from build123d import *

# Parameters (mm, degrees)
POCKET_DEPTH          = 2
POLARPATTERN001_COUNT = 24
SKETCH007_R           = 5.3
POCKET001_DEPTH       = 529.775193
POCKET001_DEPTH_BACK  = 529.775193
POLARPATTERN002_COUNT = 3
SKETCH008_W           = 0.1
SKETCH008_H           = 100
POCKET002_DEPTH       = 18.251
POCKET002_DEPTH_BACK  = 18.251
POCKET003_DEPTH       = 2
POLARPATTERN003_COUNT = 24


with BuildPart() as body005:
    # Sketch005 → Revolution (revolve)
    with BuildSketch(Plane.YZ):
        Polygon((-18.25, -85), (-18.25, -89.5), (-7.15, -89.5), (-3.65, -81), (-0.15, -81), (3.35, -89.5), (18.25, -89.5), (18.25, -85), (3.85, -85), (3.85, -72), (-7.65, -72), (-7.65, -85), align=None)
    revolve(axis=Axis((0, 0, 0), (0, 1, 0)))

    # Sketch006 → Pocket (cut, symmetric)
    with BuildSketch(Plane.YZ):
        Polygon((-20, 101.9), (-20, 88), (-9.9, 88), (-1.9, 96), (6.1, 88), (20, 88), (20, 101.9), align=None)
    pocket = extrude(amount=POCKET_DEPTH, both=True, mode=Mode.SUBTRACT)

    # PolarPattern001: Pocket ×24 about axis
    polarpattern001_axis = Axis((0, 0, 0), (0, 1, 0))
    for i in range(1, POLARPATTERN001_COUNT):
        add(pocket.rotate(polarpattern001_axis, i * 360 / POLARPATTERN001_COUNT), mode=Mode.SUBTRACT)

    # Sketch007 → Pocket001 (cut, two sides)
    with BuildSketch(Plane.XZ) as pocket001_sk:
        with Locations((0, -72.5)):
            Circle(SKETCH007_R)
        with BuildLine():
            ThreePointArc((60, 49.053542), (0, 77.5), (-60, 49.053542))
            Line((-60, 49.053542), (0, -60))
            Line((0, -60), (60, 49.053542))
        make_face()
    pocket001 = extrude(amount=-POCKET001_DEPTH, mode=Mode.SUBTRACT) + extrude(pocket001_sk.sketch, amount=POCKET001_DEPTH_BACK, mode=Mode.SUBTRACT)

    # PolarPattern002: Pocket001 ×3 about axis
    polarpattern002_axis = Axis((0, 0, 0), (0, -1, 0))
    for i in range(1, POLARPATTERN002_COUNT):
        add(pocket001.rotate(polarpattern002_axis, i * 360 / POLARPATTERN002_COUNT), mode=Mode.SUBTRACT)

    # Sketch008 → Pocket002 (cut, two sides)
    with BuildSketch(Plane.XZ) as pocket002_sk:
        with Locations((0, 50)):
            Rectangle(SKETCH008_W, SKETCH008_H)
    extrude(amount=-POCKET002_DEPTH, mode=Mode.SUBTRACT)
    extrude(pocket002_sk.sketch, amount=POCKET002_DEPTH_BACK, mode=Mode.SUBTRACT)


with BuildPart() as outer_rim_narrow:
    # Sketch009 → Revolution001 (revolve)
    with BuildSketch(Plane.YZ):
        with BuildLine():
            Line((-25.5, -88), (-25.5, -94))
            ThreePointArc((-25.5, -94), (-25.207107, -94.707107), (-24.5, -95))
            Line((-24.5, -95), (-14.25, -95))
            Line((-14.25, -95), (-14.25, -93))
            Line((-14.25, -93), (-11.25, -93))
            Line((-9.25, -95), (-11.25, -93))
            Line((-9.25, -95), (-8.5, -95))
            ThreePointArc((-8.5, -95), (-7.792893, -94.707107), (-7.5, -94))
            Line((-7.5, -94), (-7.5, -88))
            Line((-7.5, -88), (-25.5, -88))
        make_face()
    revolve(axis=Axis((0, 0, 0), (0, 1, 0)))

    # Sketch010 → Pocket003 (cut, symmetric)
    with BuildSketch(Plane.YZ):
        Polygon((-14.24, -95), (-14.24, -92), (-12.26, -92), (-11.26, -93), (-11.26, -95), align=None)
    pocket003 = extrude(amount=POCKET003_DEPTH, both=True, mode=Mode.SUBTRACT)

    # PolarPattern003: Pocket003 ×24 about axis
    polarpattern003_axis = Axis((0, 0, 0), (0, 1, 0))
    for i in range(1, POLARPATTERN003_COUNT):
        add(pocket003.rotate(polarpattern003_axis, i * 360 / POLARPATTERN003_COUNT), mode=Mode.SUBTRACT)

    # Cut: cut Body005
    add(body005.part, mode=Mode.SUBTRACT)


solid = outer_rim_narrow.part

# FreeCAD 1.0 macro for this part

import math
import FreeCAD as App
import Part
import Sketcher
from FreeCAD import Vector
Q = App.Units.Quantity

doc = App.newDocument("Part")
body = doc.addObject("PartDesign::Body", "Body")

# Sketch on YZ plane
sketch1 = body.newObject("Sketcher::SketchObject", "Sketch")
sketch1.AttachmentSupport = (doc.getObject("YZ_Plane"), [""])
sketch1.MapMode = "FlatFace"
sketch1.addGeometry(Part.LineSegment(Vector(-18.2, -85, 0), Vector(-18.2, -89.5, 0)), False)
sketch1.addGeometry(Part.LineSegment(Vector(-18.2, -89.5, 0), Vector(-7.2, -89.5, 0)), False)
sketch1.addGeometry(Part.LineSegment(Vector(-7.2, -89.5, 0), Vector(-3.6, -81, 0)), False)
sketch1.addGeometry(Part.LineSegment(Vector(-3.6, -81, 0), Vector(-0.1, -81, 0)), False)
sketch1.addGeometry(Part.LineSegment(Vector(-0.1, -81, 0), Vector(3.4, -89.5, 0)), False)
sketch1.addGeometry(Part.LineSegment(Vector(3.4, -89.5, 0), Vector(18.2, -89.5, 0)), False)
sketch1.addGeometry(Part.LineSegment(Vector(18.2, -89.5, 0), Vector(18.2, -85, 0)), False)
sketch1.addGeometry(Part.LineSegment(Vector(18.2, -85, 0), Vector(3.9, -85, 0)), False)
sketch1.addGeometry(Part.LineSegment(Vector(3.9, -85, 0), Vector(3.9, -72, 0)), False)
sketch1.addGeometry(Part.LineSegment(Vector(3.9, -72, 0), Vector(-7.7, -72, 0)), False)
sketch1.addGeometry(Part.LineSegment(Vector(-7.7, -72, 0), Vector(-7.7, -85, 0)), False)
sketch1.addGeometry(Part.LineSegment(Vector(-7.7, -85, 0), Vector(-18.2, -85, 0)), False)
sketch1.addConstraint(Sketcher.Constraint("Coincident", 0, 2, 1, 1))
sketch1.addConstraint(Sketcher.Constraint("Coincident", 1, 2, 2, 1))
sketch1.addConstraint(Sketcher.Constraint("Coincident", 2, 2, 3, 1))
sketch1.addConstraint(Sketcher.Constraint("Coincident", 3, 2, 4, 1))
sketch1.addConstraint(Sketcher.Constraint("Coincident", 4, 2, 5, 1))
sketch1.addConstraint(Sketcher.Constraint("Coincident", 5, 2, 6, 1))
sketch1.addConstraint(Sketcher.Constraint("Coincident", 6, 2, 7, 1))
sketch1.addConstraint(Sketcher.Constraint("Coincident", 7, 2, 8, 1))
sketch1.addConstraint(Sketcher.Constraint("Coincident", 8, 2, 9, 1))
sketch1.addConstraint(Sketcher.Constraint("Coincident", 9, 2, 10, 1))
sketch1.addConstraint(Sketcher.Constraint("Coincident", 10, 2, 11, 1))
sketch1.addConstraint(Sketcher.Constraint("Coincident", 11, 2, 0, 1))
sketch1.addConstraint(Sketcher.Constraint("Vertical", 0))
sketch1.addConstraint(Sketcher.Constraint("Horizontal", 1))
sketch1.addConstraint(Sketcher.Constraint("Horizontal", 3))
sketch1.addConstraint(Sketcher.Constraint("Horizontal", 5))
sketch1.addConstraint(Sketcher.Constraint("Vertical", 6))
sketch1.addConstraint(Sketcher.Constraint("Horizontal", 7))
sketch1.addConstraint(Sketcher.Constraint("Vertical", 8))
sketch1.addConstraint(Sketcher.Constraint("Horizontal", 9))
sketch1.addConstraint(Sketcher.Constraint("Vertical", 10))
sketch1.addConstraint(Sketcher.Constraint("Horizontal", 11))
sketch1.addConstraint(Sketcher.Constraint("Symmetric", 0, 2, 5, 2, -2))
sketch1.addConstraint(Sketcher.Constraint("Horizontal", 7, 2, 10, 2))
sketch1.addConstraint(Sketcher.Constraint("Equal", 2, 4))
sketch1.addConstraint(Sketcher.Constraint("DistanceY", 8, 1, 8, 2, 13.0))
sketch1.addConstraint(Sketcher.Constraint("DistanceX", 1, 1, 1, 2, 11.1))
sketch1.addConstraint(Sketcher.Constraint("DistanceX", 3, 1, 3, 2, 3.5))
sketch1.addConstraint(Sketcher.Constraint("DistanceX", 5, 1, 5, 2, 14.9))
sketch1.addConstraint(Sketcher.Constraint("DistanceX", 7, 2, 7, 1, 14.4))
sketch1.addConstraint(Sketcher.Constraint("DistanceX", 9, 2, 9, 1, 11.5))
sketch1.addConstraint(Sketcher.Constraint("DistanceX", 11, 2, 11, 1, 10.6))
sketch1.addConstraint(Sketcher.Constraint("DistanceY", 0, 2, 0, 1, 4.5))
sketch1.addConstraint(Sketcher.Constraint("DistanceY", 2, 2, -1, 1, 81.0))
sketch1.addConstraint(Sketcher.Constraint("DistanceY", 6, 2, -1, 1, 85.0))
revolution = body.newObject("PartDesign::Revolution", "Revolution")
revolution.Profile = sketch1
revolution.ReferenceAxis = (sketch1, ["H_Axis"])
revolution.Angle = 360

# Sketch on YZ plane
sketch2 = body.newObject("Sketcher::SketchObject", "Sketch001")
sketch2.AttachmentSupport = (doc.getObject("YZ_Plane"), [""])
sketch2.MapMode = "FlatFace"
sketch2.addGeometry(Part.LineSegment(Vector(-20, 102, 0), Vector(-20, 88, 0)), False)
sketch2.addGeometry(Part.LineSegment(Vector(-20, 88, 0), Vector(-10, 88, 0)), False)
sketch2.addGeometry(Part.LineSegment(Vector(-10, 88, 0), Vector(-2, 96, 0)), False)
sketch2.addGeometry(Part.LineSegment(Vector(-2, 96, 0), Vector(6, 88, 0)), False)
sketch2.addGeometry(Part.LineSegment(Vector(6, 88, 0), Vector(20, 88, 0)), False)
sketch2.addGeometry(Part.LineSegment(Vector(20, 88, 0), Vector(20, 102, 0)), False)
sketch2.addGeometry(Part.LineSegment(Vector(20, 102, 0), Vector(-20, 102, 0)), False)
sketch2.addConstraint(Sketcher.Constraint("Coincident", 0, 2, 1, 1))
sketch2.addConstraint(Sketcher.Constraint("Coincident", 1, 2, 2, 1))
sketch2.addConstraint(Sketcher.Constraint("Coincident", 2, 2, 3, 1))
sketch2.addConstraint(Sketcher.Constraint("Coincident", 3, 2, 4, 1))
sketch2.addConstraint(Sketcher.Constraint("Coincident", 4, 2, 5, 1))
sketch2.addConstraint(Sketcher.Constraint("Coincident", 5, 2, 6, 1))
sketch2.addConstraint(Sketcher.Constraint("Coincident", 6, 2, 0, 1))
sketch2.addConstraint(Sketcher.Constraint("Vertical", 0))
sketch2.addConstraint(Sketcher.Constraint("Horizontal", 1))
sketch2.addConstraint(Sketcher.Constraint("Horizontal", 4))
sketch2.addConstraint(Sketcher.Constraint("Vertical", 5))
sketch2.addConstraint(Sketcher.Constraint("Horizontal", 6))
sketch2.addConstraint(Sketcher.Constraint("Symmetric", 0, 2, 4, 2, -2))
sketch2.addConstraint(Sketcher.Constraint("Perpendicular", 2, 3))
sketch2.addConstraint(Sketcher.Constraint("Equal", 4, 0))
sketch2.addConstraint(Sketcher.Constraint("Equal", 2, 3))
sketch2.addConstraint(Sketcher.Constraint("DistanceX", 6, 2, 6, 1, 40.0))
sketch2.addConstraint(Sketcher.Constraint("DistanceX", 1, 1, 1, 2, 10.1))
sketch2.addConstraint(Sketcher.Constraint("DistanceX", 4, 1, 4, 2, 13.9))
sketch2.addConstraint(Sketcher.Constraint("DistanceY", -1, 1, 0, 2, 88.0))
pocket1 = body.newObject("PartDesign::Pocket", "Pocket")
pocket1.Profile = sketch2
pocket1.Length = 4
pocket1.Midplane = True
doc.recompute()

polarpattern = body.newObject("PartDesign::PolarPattern", "PolarPattern")
polarpattern.Originals = [pocket1]
polarpattern.Axis = (doc.getObject("Y_Axis"), [""])
polarpattern.Angle = 360
polarpattern.Occurrences = 24
body.Tip = polarpattern

# Sketch on XZ plane
sketch3 = body.newObject("Sketcher::SketchObject", "Sketch002")
sketch3.AttachmentSupport = (doc.getObject("XZ_Plane"), [""])
sketch3.MapMode = "FlatFace"
sketch3.addGeometry(Part.Circle(Vector(0, -72, 0), Vector(0, 0, 1), 5), False)
sketch3.addGeometry(Part.ArcOfCircle(Part.Circle(Vector(0, 0, 0), Vector(0, 0, 1), 77), math.radians(39), math.radians(141)), False)
sketch3.addGeometry(Part.LineSegment(Vector(-60, 49, 0), Vector(0, -60, 0)), False)
sketch3.addGeometry(Part.LineSegment(Vector(0, -60, 0), Vector(60, 49, 0)), False)
sketch3.addConstraint(Sketcher.Constraint("Coincident", 1, 2, 2, 1))
sketch3.addConstraint(Sketcher.Constraint("Coincident", 2, 2, 3, 1))
sketch3.addConstraint(Sketcher.Constraint("Coincident", 3, 2, 1, 1))
sketch3.addConstraint(Sketcher.Constraint("Coincident", 1, 3, -1, 1))
sketch3.addConstraint(Sketcher.Constraint("PointOnObject", 0, 3, -2))
sketch3.addConstraint(Sketcher.Constraint("PointOnObject", 2, 2, -2))
sketch3.addConstraint(Sketcher.Constraint("Horizontal", 1, 2, 3, 2))
sketch3.addConstraint(Sketcher.Constraint("Diameter", 0, 10.6))
sketch3.addConstraint(Sketcher.Constraint("Radius", 1, 77.5))
sketch3.addConstraint(Sketcher.Constraint("DistanceX", 1, 2, -1, 1, 60.0))
sketch3.addConstraint(Sketcher.Constraint("DistanceY", 2, 2, -1, 1, 60.0))
sketch3.addConstraint(Sketcher.Constraint("DistanceY", 0, 3, -1, 1, 72.5))
pocket2 = body.newObject("PartDesign::Pocket", "Pocket001")
pocket2.Profile = sketch3
pocket2.Type = "ThroughAll"
pocket2.Midplane = True
doc.recompute()

polarpattern2 = body.newObject("PartDesign::PolarPattern", "PolarPattern001")
polarpattern2.Originals = [pocket2]
polarpattern2.Axis = (doc.getObject("Y_Axis"), [""])
polarpattern2.Angle = 360
polarpattern2.Occurrences = 3
body.Tip = polarpattern2

# Sketch on XZ plane
sketch4 = body.newObject("Sketcher::SketchObject", "Sketch003")
sketch4.AttachmentSupport = (doc.getObject("XZ_Plane"), [""])
sketch4.MapMode = "FlatFace"
sketch4.addGeometry(Part.LineSegment(Vector(-0.05, 100, 0), Vector(-0.05, 0, 0)), False)
sketch4.addGeometry(Part.LineSegment(Vector(-0.05, 0, 0), Vector(0.05, 0, 0)), False)
sketch4.addGeometry(Part.LineSegment(Vector(0.05, 0, 0), Vector(0.05, 100, 0)), False)
sketch4.addGeometry(Part.LineSegment(Vector(0.05, 100, 0), Vector(-0.05, 100, 0)), False)
sketch4.addConstraint(Sketcher.Constraint("Coincident", 0, 2, 1, 1))
sketch4.addConstraint(Sketcher.Constraint("Coincident", 1, 2, 2, 1))
sketch4.addConstraint(Sketcher.Constraint("Coincident", 2, 2, 3, 1))
sketch4.addConstraint(Sketcher.Constraint("Coincident", 3, 2, 0, 1))
sketch4.addConstraint(Sketcher.Constraint("Vertical", 0))
sketch4.addConstraint(Sketcher.Constraint("Horizontal", 1))
sketch4.addConstraint(Sketcher.Constraint("Vertical", 2))
sketch4.addConstraint(Sketcher.Constraint("Horizontal", 3))
sketch4.addConstraint(Sketcher.Constraint("Symmetric", 0, 2, 1, 2, -1, 1))
sketch4.addConstraint(Sketcher.Constraint("DistanceY", 0, 2, 0, 1, 100.0))
sketch4.addConstraint(Sketcher.Constraint("DistanceX", 1, 1, 1, 2, 0.1))
pocket3 = body.newObject("PartDesign::Pocket", "Pocket002")
pocket3.Profile = sketch4
pocket3.Type = "ThroughAll"
pocket3.Midplane = True
body2 = doc.addObject("PartDesign::Body", "Body001")

# Sketch on YZ plane
sketch5 = body2.newObject("Sketcher::SketchObject", "Sketch004")
sketch5.AttachmentSupport = (doc.getObject("YZ_Plane001"), [""])
sketch5.MapMode = "FlatFace"
sketch5.addGeometry(Part.LineSegment(Vector(-25.5, -88, 0), Vector(-25.5, -94, 0)), False)
sketch5.addGeometry(Part.ArcOfCircle(Part.Circle(Vector(-24.5, -94, 0), Vector(0, 0, 1), 1), math.radians(180), math.radians(270)), False)
sketch5.addGeometry(Part.LineSegment(Vector(-24.5, -95, 0), Vector(-14.2, -95, 0)), False)
sketch5.addGeometry(Part.LineSegment(Vector(-14.2, -95, 0), Vector(-14.2, -93, 0)), False)
sketch5.addGeometry(Part.LineSegment(Vector(-14.2, -93, 0), Vector(-11.2, -93, 0)), False)
sketch5.addGeometry(Part.LineSegment(Vector(-11.2, -93, 0), Vector(-9.2, -95, 0)), False)
sketch5.addGeometry(Part.LineSegment(Vector(-9.2, -95, 0), Vector(-8.5, -95, 0)), False)
sketch5.addGeometry(Part.ArcOfCircle(Part.Circle(Vector(-8.5, -94, 0), Vector(0, 0, 1), 1), math.radians(-90), math.radians(0)), False)
sketch5.addGeometry(Part.LineSegment(Vector(-7.5, -94, 0), Vector(-7.5, -88, 0)), False)
sketch5.addGeometry(Part.LineSegment(Vector(-7.5, -88, 0), Vector(-25.5, -88, 0)), False)
sketch5.addConstraint(Sketcher.Constraint("Tangent", 0, 2, 1, 1))
sketch5.addConstraint(Sketcher.Constraint("Tangent", 1, 2, 2, 1))
sketch5.addConstraint(Sketcher.Constraint("Coincident", 2, 2, 3, 1))
sketch5.addConstraint(Sketcher.Constraint("Coincident", 3, 2, 4, 1))
sketch5.addConstraint(Sketcher.Constraint("Coincident", 4, 2, 5, 1))
sketch5.addConstraint(Sketcher.Constraint("Coincident", 5, 2, 6, 1))
sketch5.addConstraint(Sketcher.Constraint("Tangent", 6, 2, 7, 1))
sketch5.addConstraint(Sketcher.Constraint("Tangent", 7, 2, 8, 1))
sketch5.addConstraint(Sketcher.Constraint("Coincident", 8, 2, 9, 1))
sketch5.addConstraint(Sketcher.Constraint("Coincident", 9, 2, 0, 1))
sketch5.addConstraint(Sketcher.Constraint("Vertical", 0))
sketch5.addConstraint(Sketcher.Constraint("Horizontal", 2))
sketch5.addConstraint(Sketcher.Constraint("Vertical", 3))
sketch5.addConstraint(Sketcher.Constraint("Horizontal", 4))
sketch5.addConstraint(Sketcher.Constraint("Horizontal", 6))
sketch5.addConstraint(Sketcher.Constraint("Vertical", 8))
sketch5.addConstraint(Sketcher.Constraint("Horizontal", 9))
sketch5.addConstraint(Sketcher.Constraint("Equal", 1, 7))
sketch5.addConstraint(Sketcher.Constraint("Horizontal", 1, 3, 7, 3))
sketch5.addConstraint(Sketcher.Constraint("Radius", 1, 0.999999))
sketch5.addConstraint(Sketcher.Constraint("DistanceX", 4, 1, 4, 2, 3.0))
sketch5.addConstraint(Sketcher.Constraint("DistanceX", 9, 2, 9, 1, 18.0))
sketch5.addConstraint(Sketcher.Constraint("DistanceY", 0, 2, 0, 1, 6.0))
sketch5.addConstraint(Sketcher.Constraint("DistanceY", 3, 1, 3, 2, 2.0))
sketch5.addConstraint(Sketcher.Constraint("Angle", 5, Q("-45 deg")))
sketch5.addConstraint(Sketcher.Constraint("DistanceY", 1, 3, -1, 1, 94.000001))
sketch5.addConstraint(Sketcher.Constraint("DistanceX", 2, 1, 2, 2, 10.25))
sketch5.addConstraint(Sketcher.Constraint("DistanceX", 1, 3, -1, 1, 24.500001))
revolution2 = body2.newObject("PartDesign::Revolution", "Revolution001")
revolution2.Profile = sketch5
revolution2.ReferenceAxis = (sketch5, ["H_Axis"])
revolution2.Angle = 360

# Sketch on YZ plane
sketch6 = body2.newObject("Sketcher::SketchObject", "Sketch005")
sketch6.AttachmentSupport = (doc.getObject("YZ_Plane001"), [""])
sketch6.MapMode = "FlatFace"
sketch6.addGeometry(Part.LineSegment(Vector(-14.2, -92, 0), Vector(-14.2, -95, 0)), False)
sketch6.addGeometry(Part.LineSegment(Vector(-14.2, -95, 0), Vector(-11.3, -95, 0)), False)
sketch6.addGeometry(Part.LineSegment(Vector(-11.3, -95, 0), Vector(-11.3, -93, 0)), False)
sketch6.addGeometry(Part.LineSegment(Vector(-11.3, -93, 0), Vector(-12.3, -92, 0)), False)
sketch6.addGeometry(Part.LineSegment(Vector(-12.3, -92, 0), Vector(-14.2, -92, 0)), False)
sketch6.addConstraint(Sketcher.Constraint("Coincident", 0, 2, 1, 1))
sketch6.addConstraint(Sketcher.Constraint("Coincident", 1, 2, 2, 1))
sketch6.addConstraint(Sketcher.Constraint("Coincident", 2, 2, 3, 1))
sketch6.addConstraint(Sketcher.Constraint("Coincident", 3, 2, 4, 1))
sketch6.addConstraint(Sketcher.Constraint("Coincident", 4, 2, 0, 1))
sketch6.addConstraint(Sketcher.Constraint("Vertical", 0))
sketch6.addConstraint(Sketcher.Constraint("Horizontal", 1))
sketch6.addConstraint(Sketcher.Constraint("Vertical", 2))
sketch6.addConstraint(Sketcher.Constraint("Horizontal", 4))
sketch6.addConstraint(Sketcher.Constraint("DistanceY", 0, 2, 0, 1, 3.0))
sketch6.addConstraint(Sketcher.Constraint("DistanceY", 2, 1, 2, 2, 2.0))
sketch6.addConstraint(Sketcher.Constraint("Angle", 3, Q("135 deg")))
sketch6.addConstraint(Sketcher.Constraint("DistanceY", 0, 2, -1, 1, 95.0))
sketch6.addConstraint(Sketcher.Constraint("DistanceX", 1, 1, 1, 2, 2.98))
sketch6.addConstraint(Sketcher.Constraint("DistanceX", 0, 2, -1, 1, 14.24))
pocket4 = body2.newObject("PartDesign::Pocket", "Pocket003")
pocket4.Profile = sketch6
pocket4.Length = 4
pocket4.Midplane = True
doc.recompute()

polarpattern3 = body2.newObject("PartDesign::PolarPattern", "PolarPattern002")
polarpattern3.Originals = [pocket4]
polarpattern3.Axis = (doc.getObject("Y_Axis001"), [""])
polarpattern3.Angle = 360
polarpattern3.Occurrences = 24
body2.Tip = polarpattern3
doc.recompute()

boolean = body2.newObject("PartDesign::Boolean", "Boolean")
boolean.Type = "Cut"
boolean.addObjects([body])

doc.recompute()
